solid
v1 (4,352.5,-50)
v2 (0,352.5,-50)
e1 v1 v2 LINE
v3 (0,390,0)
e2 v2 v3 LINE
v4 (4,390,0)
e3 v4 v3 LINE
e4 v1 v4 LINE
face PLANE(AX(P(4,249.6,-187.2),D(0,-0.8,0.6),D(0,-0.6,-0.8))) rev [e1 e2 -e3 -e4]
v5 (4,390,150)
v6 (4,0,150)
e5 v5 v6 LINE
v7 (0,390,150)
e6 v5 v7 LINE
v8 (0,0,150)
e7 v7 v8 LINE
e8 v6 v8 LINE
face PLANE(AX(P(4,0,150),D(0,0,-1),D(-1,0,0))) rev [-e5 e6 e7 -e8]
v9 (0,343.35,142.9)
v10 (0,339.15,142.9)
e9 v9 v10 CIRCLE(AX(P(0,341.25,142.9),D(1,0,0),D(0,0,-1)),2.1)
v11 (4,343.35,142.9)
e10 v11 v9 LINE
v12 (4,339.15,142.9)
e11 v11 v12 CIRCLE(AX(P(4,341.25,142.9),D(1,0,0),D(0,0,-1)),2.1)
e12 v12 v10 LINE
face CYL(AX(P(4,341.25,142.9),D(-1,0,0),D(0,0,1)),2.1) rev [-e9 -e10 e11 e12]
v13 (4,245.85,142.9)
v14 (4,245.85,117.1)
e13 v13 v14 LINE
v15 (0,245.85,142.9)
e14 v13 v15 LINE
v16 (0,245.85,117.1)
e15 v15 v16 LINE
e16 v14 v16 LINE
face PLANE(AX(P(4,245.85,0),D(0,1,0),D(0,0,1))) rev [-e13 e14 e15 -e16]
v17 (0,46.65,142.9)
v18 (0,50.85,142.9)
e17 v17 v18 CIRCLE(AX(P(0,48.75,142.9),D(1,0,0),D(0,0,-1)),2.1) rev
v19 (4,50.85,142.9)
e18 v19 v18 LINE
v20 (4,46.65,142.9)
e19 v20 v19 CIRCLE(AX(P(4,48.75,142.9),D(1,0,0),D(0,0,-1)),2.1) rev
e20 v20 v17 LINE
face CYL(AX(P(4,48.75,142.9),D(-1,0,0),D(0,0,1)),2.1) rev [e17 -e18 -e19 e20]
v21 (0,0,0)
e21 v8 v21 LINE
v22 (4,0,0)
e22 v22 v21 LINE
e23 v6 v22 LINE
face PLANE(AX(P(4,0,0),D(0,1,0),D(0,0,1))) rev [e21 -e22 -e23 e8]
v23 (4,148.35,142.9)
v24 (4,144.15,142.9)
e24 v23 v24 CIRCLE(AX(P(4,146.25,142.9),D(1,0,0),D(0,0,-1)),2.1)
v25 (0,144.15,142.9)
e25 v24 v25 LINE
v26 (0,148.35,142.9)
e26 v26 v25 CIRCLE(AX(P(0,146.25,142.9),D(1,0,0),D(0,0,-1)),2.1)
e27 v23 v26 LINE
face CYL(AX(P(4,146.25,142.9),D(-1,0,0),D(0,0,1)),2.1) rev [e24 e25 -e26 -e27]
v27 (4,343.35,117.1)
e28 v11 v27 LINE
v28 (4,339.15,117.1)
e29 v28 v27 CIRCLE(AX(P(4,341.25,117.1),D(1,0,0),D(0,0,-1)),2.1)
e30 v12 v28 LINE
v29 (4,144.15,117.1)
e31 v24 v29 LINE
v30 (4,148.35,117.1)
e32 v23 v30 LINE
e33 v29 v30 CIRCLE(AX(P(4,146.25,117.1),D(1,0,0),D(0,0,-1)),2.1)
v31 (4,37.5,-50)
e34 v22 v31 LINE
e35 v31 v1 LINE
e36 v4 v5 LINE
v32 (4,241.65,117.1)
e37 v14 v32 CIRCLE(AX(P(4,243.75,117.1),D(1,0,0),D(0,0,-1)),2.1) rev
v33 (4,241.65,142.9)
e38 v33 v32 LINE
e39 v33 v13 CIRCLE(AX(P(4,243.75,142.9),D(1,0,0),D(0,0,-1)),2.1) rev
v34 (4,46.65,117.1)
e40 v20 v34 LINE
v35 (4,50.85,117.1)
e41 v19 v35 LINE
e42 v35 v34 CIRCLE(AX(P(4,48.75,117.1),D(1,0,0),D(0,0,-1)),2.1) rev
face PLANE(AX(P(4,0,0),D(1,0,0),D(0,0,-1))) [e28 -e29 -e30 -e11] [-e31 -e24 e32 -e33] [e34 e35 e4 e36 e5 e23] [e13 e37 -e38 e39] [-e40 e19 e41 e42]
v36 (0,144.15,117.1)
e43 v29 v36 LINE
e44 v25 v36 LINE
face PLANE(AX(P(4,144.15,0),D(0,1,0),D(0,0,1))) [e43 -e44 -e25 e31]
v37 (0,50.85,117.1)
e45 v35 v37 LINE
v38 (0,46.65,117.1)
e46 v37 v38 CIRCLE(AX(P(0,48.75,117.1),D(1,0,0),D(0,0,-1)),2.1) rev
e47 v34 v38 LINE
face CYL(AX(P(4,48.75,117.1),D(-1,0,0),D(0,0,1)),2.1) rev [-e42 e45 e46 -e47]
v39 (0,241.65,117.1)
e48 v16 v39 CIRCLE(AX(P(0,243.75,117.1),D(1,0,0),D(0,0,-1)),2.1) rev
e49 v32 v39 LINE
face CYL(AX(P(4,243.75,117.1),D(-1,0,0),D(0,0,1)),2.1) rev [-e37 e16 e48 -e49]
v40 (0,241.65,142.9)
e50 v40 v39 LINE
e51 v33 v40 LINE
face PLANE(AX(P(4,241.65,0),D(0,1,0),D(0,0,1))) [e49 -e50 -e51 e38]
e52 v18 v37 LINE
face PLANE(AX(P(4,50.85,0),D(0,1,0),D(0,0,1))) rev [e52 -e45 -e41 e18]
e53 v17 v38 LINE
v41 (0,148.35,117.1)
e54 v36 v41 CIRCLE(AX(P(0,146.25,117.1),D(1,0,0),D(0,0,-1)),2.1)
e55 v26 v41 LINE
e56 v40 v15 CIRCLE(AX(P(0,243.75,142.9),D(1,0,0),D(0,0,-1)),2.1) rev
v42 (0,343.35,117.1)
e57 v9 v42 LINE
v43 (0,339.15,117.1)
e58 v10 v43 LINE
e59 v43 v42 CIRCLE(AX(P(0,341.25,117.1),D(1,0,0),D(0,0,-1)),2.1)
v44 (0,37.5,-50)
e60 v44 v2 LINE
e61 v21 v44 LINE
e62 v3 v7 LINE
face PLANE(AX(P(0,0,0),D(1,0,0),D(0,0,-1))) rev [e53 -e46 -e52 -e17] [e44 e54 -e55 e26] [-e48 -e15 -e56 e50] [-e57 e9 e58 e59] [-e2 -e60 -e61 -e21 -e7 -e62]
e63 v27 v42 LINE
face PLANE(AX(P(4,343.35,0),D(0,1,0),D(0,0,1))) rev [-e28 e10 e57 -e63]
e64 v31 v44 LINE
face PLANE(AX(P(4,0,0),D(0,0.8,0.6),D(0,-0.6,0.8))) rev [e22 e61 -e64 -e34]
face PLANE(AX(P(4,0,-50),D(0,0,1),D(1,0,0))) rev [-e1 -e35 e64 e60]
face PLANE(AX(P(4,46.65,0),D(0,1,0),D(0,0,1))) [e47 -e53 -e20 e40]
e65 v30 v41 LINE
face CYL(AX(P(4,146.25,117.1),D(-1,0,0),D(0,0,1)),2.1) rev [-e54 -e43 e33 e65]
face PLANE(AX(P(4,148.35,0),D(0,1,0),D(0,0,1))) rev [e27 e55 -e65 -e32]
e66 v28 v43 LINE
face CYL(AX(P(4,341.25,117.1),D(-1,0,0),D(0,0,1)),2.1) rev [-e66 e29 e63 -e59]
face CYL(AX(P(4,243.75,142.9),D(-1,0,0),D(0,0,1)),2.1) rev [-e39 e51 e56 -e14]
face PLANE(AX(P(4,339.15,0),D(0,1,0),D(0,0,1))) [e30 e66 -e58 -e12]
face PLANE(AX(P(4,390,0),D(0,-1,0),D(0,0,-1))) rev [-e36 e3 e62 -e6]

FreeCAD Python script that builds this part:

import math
import FreeCAD as App
import Part
import Sketcher

V = App.Vector
Q = App.Units.Quantity

doc = App.newDocument("Part")
body = doc.addObject("PartDesign::Body", "Body")

sketch1 = doc.addObject("Sketcher::SketchObject", "Sketch")
body.addObject(sketch1)
sketch1.AttachmentSupport = (doc.YZ_Plane, [""])
sketch1.MapMode = "FlatFace"
sketch1.addGeometry([
    Part.LineSegment(V(37.5, -50, 0), V(352.5, -50, 0)),
    Part.LineSegment(V(352.5, -50, 0), V(390, 0, 0)),
    Part.LineSegment(V(390, 0, 0), V(390, 150, 0)),
    Part.LineSegment(V(390, 150, 0), V(0, 150, 0)),
    Part.LineSegment(V(0, 150, 0), V(0, 0, 0)),
    Part.LineSegment(V(0, 0, 0), V(37.5, -50, 0)),
    Part.ArcOfCircle(Part.Circle(V(48.75, 142.9, 0), V(0, 0, 1), 2.1), math.radians(0), math.radians(180)),
    Part.LineSegment(V(50.85, 142.9, 0), V(50.85, 117.1, 0)),
    Part.ArcOfCircle(Part.Circle(V(48.75, 117.1, 0), V(0, 0, 1), 2.1), math.radians(180), math.radians(360)),
    Part.LineSegment(V(46.65, 117.1, 0), V(46.65, 142.9, 0)),
    Part.ArcOfCircle(Part.Circle(V(146.25, 117.1, 0), V(0, 0, 1), 2.1), math.radians(180), math.radians(360)),
    Part.LineSegment(V(144.15, 117.1, 0), V(144.15, 142.9, 0)),
    Part.ArcOfCircle(Part.Circle(V(146.25, 142.9, 0), V(0, 0, 1), 2.1), math.radians(0), math.radians(180)),
    Part.LineSegment(V(148.35, 142.9, 0), V(148.35, 117.1, 0)),
    Part.ArcOfCircle(Part.Circle(V(243.75, 142.9, 0), V(0, 0, 1), 2.1), math.radians(0), math.radians(180)),
    Part.LineSegment(V(245.85, 142.9, 0), V(245.85, 117.1, 0)),
    Part.ArcOfCircle(Part.Circle(V(243.75, 117.1, 0), V(0, 0, 1), 2.1), math.radians(180), math.radians(360)),
    Part.LineSegment(V(241.65, 117.1, 0), V(241.65, 142.9, 0)),
    Part.ArcOfCircle(Part.Circle(V(341.25, 117.1, 0), V(0, 0, 1), 2.1), math.radians(180), math.radians(360)),
    Part.LineSegment(V(339.15, 117.1, 0), V(339.15, 142.9, 0)),
    Part.ArcOfCircle(Part.Circle(V(341.25, 142.9, 0), V(0, 0, 1), 2.1), math.radians(0), math.radians(180)),
    Part.LineSegment(V(343.35, 142.9, 0), V(343.35, 117.1, 0)),
], False)
sketch1.addConstraint([
    Sketcher.Constraint("Coincident", 0, 2, 1, 1),
    Sketcher.Constraint("Coincident", 1, 2, 2, 1),
    Sketcher.Constraint("Coincident", 2, 2, 3, 1),
    Sketcher.Constraint("Coincident", 3, 2, 4, 1),
    Sketcher.Constraint("Coincident", 4, 2, 5, 1),
    Sketcher.Constraint("Coincident", 5, 2, 0, 1),
    Sketcher.Constraint("Tangent", 6, 1, 7, 1),
    Sketcher.Constraint("Tangent", 7, 2, 8, 2),
    Sketcher.Constraint("Tangent", 8, 1, 9, 1),
    Sketcher.Constraint("Tangent", 9, 2, 6, 2),
    Sketcher.Constraint("Tangent", 10, 1, 11, 1),
    Sketcher.Constraint("Tangent", 11, 2, 12, 2),
    Sketcher.Constraint("Tangent", 12, 1, 13, 1),
    Sketcher.Constraint("Tangent", 13, 2, 10, 2),
    Sketcher.Constraint("Tangent", 14, 1, 15, 1),
    Sketcher.Constraint("Tangent", 15, 2, 16, 2),
    Sketcher.Constraint("Tangent", 16, 1, 17, 1),
    Sketcher.Constraint("Tangent", 17, 2, 14, 2),
    Sketcher.Constraint("Tangent", 18, 1, 19, 1),
    Sketcher.Constraint("Tangent", 19, 2, 20, 2),
    Sketcher.Constraint("Tangent", 20, 1, 21, 1),
    Sketcher.Constraint("Tangent", 21, 2, 18, 2),
    Sketcher.Constraint("Horizontal", 0),
    Sketcher.Constraint("Vertical", 2),
    Sketcher.Constraint("Horizontal", 3),
    Sketcher.Constraint("Vertical", 4),
    Sketcher.Constraint("Vertical", 7),
    Sketcher.Constraint("Vertical", 9),
    Sketcher.Constraint("Vertical", 11),
    Sketcher.Constraint("Vertical", 13),
    Sketcher.Constraint("Vertical", 15),
    Sketcher.Constraint("Vertical", 17),
    Sketcher.Constraint("Vertical", 19),
    Sketcher.Constraint("Vertical", 21),
    Sketcher.Constraint("Coincident", 4, 2, -1, 1),
    Sketcher.Constraint("Equal", 8, 10),
    Sketcher.Constraint("Equal", 12, 14),
    Sketcher.Constraint("Equal", 16, 18),
    Sketcher.Constraint("PointOnObject", 1, 2, -1),
    Sketcher.Constraint("Horizontal", 8, 3, 10, 3),
    Sketcher.Constraint("Horizontal", 6, 3, 12, 3),
    Sketcher.Constraint("Horizontal", 12, 3, 14, 3),
    Sketcher.Constraint("Horizontal", 10, 3, 16, 3),
    Sketcher.Constraint("Horizontal", 16, 3, 18, 3),
    Sketcher.Constraint("Horizontal", 14, 3, 20, 3),
    Sketcher.Constraint("Equal", 1, 5),
    Sketcher.Constraint("Radius", 6, Q("2.1 mm")),
    Sketcher.Constraint("DistanceX", 0, 1, 0, 2, Q("315 mm")),
    Sketcher.Constraint("DistanceX", 3, 2, 3, 1, Q("390 mm")),
    Sketcher.Constraint("DistanceY", 2, 1, 2, 2, Q("150 mm")),
    Sketcher.Constraint("DistanceY", 7, 2, 7, 1, Q("25.8 mm")),
    Sketcher.Constraint("DistanceY", 0, 2, -1, 1, Q("50 mm")),
    Sketcher.Constraint("DistanceX", 6, 3, 14, 3, Q("195 mm")),
    Sketcher.Constraint("DistanceX", 10, 3, 18, 3, Q("195 mm")),
    Sketcher.Constraint("DistanceY", -1, 1, 6, 3, Q("142.9 mm")),
    Sketcher.Constraint("DistanceX", 8, 3, 10, 3, Q("97.5 mm")),
    Sketcher.Constraint("DistanceX", -1, 1, 6, 3, Q("48.75 mm")),
])
pad1 = doc.addObject("PartDesign::Pad", "Pad")
body.addObject(pad1)
pad1.Profile = sketch1
pad1.Length = 4

doc.recompute()
